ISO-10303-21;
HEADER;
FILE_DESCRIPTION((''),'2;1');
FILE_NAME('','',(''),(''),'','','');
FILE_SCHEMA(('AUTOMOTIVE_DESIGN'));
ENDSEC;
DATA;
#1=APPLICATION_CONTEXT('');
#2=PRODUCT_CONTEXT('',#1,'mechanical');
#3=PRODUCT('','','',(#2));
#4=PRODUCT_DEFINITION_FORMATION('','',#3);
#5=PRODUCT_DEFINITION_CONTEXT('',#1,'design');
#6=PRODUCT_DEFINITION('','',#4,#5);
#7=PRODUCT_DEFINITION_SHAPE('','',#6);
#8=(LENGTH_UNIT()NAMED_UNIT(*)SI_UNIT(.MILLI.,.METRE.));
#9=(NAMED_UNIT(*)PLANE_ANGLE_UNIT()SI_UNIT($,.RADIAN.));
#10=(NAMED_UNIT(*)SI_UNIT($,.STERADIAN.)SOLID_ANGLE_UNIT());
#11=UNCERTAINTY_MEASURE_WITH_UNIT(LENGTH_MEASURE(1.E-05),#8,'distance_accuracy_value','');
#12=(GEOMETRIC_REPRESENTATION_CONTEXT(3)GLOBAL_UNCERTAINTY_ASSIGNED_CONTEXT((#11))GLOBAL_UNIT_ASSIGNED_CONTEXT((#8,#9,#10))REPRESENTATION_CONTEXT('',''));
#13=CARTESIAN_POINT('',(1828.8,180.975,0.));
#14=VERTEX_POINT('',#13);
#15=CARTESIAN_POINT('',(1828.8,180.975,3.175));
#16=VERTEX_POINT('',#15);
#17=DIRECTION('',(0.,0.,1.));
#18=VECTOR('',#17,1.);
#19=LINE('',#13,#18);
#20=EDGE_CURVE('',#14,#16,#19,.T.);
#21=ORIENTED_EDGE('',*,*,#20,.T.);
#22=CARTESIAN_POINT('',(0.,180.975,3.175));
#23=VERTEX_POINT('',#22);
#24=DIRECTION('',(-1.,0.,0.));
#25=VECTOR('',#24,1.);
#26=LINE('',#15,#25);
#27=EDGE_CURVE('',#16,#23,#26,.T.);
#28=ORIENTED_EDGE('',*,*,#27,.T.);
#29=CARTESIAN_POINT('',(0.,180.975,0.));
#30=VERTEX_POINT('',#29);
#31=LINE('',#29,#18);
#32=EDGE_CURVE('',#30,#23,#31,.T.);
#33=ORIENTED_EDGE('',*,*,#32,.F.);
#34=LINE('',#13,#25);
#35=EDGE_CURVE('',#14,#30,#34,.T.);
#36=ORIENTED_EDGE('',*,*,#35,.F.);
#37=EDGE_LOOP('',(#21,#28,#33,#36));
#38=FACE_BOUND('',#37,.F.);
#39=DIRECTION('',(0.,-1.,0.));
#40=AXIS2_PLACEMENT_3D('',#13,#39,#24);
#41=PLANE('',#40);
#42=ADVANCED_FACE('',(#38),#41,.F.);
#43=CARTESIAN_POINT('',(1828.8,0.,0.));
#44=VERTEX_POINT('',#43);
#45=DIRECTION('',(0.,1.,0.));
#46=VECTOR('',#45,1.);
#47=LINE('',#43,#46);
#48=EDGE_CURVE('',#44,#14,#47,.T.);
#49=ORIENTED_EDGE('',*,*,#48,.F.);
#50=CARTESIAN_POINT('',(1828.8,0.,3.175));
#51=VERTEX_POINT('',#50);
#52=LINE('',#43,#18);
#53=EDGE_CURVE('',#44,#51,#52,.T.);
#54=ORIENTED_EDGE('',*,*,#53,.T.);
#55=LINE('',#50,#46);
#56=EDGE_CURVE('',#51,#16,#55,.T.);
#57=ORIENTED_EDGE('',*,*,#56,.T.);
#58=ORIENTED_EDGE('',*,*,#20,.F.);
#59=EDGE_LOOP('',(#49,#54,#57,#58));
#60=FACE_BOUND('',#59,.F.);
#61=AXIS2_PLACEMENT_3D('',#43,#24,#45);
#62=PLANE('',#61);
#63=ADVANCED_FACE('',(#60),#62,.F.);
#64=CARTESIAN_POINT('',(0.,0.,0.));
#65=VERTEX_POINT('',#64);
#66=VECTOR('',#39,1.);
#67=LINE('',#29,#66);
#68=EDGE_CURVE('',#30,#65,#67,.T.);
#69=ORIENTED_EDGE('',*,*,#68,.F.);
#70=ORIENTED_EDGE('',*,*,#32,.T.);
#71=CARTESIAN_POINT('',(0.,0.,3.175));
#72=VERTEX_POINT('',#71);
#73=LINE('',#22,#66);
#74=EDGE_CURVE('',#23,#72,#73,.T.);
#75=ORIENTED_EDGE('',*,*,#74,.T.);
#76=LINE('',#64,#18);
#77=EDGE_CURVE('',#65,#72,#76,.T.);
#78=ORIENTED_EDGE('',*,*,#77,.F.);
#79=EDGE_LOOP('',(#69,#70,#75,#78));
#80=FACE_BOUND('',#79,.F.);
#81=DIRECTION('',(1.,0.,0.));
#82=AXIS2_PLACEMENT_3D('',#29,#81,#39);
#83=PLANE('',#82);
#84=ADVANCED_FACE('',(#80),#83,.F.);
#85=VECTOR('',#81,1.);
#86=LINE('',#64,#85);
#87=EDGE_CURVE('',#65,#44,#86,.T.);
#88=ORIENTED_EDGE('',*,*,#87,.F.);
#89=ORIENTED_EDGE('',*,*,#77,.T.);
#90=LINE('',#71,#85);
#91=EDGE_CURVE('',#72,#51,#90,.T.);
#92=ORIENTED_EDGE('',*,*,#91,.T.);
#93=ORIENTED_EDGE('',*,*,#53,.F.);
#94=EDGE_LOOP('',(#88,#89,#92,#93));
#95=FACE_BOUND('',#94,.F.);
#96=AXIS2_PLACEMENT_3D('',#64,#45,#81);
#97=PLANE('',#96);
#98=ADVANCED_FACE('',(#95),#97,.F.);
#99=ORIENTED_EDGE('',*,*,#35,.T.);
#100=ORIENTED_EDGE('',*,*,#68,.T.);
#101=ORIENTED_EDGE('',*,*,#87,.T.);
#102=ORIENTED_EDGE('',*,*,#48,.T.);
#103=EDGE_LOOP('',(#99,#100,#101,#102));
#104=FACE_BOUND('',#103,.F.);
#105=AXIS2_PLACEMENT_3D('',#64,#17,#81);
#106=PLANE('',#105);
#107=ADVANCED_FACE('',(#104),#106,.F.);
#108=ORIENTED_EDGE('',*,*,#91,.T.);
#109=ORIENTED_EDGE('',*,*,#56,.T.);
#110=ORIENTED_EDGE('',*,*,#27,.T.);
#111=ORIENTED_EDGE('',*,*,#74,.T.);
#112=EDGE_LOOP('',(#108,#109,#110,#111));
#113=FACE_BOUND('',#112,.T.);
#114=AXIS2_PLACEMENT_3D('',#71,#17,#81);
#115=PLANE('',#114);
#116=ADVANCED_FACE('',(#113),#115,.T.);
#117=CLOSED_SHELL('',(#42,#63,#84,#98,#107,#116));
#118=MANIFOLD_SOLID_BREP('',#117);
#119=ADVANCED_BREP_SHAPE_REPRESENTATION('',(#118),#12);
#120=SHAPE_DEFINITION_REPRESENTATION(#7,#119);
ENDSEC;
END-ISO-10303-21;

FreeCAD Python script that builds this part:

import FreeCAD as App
import Part
import Sketcher

V = App.Vector
Q = App.Units.Quantity

doc = App.newDocument("Part")
params = doc.addObject("Spreadsheet::Sheet", "Params")
for row, (alias, value) in enumerate([
    ("sketch1_width", "72 in"),
    ("sketch1_height", "7.125 in"),
    ("pad1_length", "0.125 in"),
], start=1):
    params.set(f"A{row}", alias)
    params.set(f"B{row}", "=" + value)
    params.setAlias(f"B{row}", alias)

body = doc.addObject("PartDesign::Body", "Body")

# Sketch on XY plane
sketch1 = doc.addObject("Sketcher::SketchObject", "Sketch")
body.addObject(sketch1)
sketch1.AttachmentSupport = (doc.XY_Plane, [""])
sketch1.MapMode = "FlatFace"
sketch1.addGeometry([
    Part.LineSegment(V(0, 180.975, 0), V(0, 0, 0)),
    Part.LineSegment(V(0, 0, 0), V(1828.8, 0, 0)),
    Part.LineSegment(V(1828.8, 0, 0), V(1828.8, 180.975, 0)),
    Part.LineSegment(V(1828.8, 180.975, 0), V(0, 180.975, 0)),
], False)
sketch1.addConstraint([
    Sketcher.Constraint("Coincident", 0, 2, 1, 1),
    Sketcher.Constraint("Coincident", 1, 2, 2, 1),
    Sketcher.Constraint("Coincident", 2, 2, 3, 1),
    Sketcher.Constraint("Coincident", 3, 2, 0, 1),
    Sketcher.Constraint("Vertical", 0),
    Sketcher.Constraint("Horizontal", 1),
    Sketcher.Constraint("Vertical", 2),
    Sketcher.Constraint("Horizontal", 3),
    Sketcher.Constraint("Coincident", 0, 2, -1, 1),
    Sketcher.Constraint("DistanceX", 1, 1, 1, 2, Q("72 in")),
    Sketcher.Constraint("DistanceY", 0, 2, 0, 1, Q("7.125 in")),
])
sketch1.setExpression("Constraints[9]", "Params.sketch1_width")
sketch1.setExpression("Constraints[10]", "Params.sketch1_height")
pad1 = doc.addObject("PartDesign::Pad", "Pad")
body.addObject(pad1)
pad1.Profile = sketch1
pad1.setExpression("Length", "Params.pad1_length")

doc.recompute()
